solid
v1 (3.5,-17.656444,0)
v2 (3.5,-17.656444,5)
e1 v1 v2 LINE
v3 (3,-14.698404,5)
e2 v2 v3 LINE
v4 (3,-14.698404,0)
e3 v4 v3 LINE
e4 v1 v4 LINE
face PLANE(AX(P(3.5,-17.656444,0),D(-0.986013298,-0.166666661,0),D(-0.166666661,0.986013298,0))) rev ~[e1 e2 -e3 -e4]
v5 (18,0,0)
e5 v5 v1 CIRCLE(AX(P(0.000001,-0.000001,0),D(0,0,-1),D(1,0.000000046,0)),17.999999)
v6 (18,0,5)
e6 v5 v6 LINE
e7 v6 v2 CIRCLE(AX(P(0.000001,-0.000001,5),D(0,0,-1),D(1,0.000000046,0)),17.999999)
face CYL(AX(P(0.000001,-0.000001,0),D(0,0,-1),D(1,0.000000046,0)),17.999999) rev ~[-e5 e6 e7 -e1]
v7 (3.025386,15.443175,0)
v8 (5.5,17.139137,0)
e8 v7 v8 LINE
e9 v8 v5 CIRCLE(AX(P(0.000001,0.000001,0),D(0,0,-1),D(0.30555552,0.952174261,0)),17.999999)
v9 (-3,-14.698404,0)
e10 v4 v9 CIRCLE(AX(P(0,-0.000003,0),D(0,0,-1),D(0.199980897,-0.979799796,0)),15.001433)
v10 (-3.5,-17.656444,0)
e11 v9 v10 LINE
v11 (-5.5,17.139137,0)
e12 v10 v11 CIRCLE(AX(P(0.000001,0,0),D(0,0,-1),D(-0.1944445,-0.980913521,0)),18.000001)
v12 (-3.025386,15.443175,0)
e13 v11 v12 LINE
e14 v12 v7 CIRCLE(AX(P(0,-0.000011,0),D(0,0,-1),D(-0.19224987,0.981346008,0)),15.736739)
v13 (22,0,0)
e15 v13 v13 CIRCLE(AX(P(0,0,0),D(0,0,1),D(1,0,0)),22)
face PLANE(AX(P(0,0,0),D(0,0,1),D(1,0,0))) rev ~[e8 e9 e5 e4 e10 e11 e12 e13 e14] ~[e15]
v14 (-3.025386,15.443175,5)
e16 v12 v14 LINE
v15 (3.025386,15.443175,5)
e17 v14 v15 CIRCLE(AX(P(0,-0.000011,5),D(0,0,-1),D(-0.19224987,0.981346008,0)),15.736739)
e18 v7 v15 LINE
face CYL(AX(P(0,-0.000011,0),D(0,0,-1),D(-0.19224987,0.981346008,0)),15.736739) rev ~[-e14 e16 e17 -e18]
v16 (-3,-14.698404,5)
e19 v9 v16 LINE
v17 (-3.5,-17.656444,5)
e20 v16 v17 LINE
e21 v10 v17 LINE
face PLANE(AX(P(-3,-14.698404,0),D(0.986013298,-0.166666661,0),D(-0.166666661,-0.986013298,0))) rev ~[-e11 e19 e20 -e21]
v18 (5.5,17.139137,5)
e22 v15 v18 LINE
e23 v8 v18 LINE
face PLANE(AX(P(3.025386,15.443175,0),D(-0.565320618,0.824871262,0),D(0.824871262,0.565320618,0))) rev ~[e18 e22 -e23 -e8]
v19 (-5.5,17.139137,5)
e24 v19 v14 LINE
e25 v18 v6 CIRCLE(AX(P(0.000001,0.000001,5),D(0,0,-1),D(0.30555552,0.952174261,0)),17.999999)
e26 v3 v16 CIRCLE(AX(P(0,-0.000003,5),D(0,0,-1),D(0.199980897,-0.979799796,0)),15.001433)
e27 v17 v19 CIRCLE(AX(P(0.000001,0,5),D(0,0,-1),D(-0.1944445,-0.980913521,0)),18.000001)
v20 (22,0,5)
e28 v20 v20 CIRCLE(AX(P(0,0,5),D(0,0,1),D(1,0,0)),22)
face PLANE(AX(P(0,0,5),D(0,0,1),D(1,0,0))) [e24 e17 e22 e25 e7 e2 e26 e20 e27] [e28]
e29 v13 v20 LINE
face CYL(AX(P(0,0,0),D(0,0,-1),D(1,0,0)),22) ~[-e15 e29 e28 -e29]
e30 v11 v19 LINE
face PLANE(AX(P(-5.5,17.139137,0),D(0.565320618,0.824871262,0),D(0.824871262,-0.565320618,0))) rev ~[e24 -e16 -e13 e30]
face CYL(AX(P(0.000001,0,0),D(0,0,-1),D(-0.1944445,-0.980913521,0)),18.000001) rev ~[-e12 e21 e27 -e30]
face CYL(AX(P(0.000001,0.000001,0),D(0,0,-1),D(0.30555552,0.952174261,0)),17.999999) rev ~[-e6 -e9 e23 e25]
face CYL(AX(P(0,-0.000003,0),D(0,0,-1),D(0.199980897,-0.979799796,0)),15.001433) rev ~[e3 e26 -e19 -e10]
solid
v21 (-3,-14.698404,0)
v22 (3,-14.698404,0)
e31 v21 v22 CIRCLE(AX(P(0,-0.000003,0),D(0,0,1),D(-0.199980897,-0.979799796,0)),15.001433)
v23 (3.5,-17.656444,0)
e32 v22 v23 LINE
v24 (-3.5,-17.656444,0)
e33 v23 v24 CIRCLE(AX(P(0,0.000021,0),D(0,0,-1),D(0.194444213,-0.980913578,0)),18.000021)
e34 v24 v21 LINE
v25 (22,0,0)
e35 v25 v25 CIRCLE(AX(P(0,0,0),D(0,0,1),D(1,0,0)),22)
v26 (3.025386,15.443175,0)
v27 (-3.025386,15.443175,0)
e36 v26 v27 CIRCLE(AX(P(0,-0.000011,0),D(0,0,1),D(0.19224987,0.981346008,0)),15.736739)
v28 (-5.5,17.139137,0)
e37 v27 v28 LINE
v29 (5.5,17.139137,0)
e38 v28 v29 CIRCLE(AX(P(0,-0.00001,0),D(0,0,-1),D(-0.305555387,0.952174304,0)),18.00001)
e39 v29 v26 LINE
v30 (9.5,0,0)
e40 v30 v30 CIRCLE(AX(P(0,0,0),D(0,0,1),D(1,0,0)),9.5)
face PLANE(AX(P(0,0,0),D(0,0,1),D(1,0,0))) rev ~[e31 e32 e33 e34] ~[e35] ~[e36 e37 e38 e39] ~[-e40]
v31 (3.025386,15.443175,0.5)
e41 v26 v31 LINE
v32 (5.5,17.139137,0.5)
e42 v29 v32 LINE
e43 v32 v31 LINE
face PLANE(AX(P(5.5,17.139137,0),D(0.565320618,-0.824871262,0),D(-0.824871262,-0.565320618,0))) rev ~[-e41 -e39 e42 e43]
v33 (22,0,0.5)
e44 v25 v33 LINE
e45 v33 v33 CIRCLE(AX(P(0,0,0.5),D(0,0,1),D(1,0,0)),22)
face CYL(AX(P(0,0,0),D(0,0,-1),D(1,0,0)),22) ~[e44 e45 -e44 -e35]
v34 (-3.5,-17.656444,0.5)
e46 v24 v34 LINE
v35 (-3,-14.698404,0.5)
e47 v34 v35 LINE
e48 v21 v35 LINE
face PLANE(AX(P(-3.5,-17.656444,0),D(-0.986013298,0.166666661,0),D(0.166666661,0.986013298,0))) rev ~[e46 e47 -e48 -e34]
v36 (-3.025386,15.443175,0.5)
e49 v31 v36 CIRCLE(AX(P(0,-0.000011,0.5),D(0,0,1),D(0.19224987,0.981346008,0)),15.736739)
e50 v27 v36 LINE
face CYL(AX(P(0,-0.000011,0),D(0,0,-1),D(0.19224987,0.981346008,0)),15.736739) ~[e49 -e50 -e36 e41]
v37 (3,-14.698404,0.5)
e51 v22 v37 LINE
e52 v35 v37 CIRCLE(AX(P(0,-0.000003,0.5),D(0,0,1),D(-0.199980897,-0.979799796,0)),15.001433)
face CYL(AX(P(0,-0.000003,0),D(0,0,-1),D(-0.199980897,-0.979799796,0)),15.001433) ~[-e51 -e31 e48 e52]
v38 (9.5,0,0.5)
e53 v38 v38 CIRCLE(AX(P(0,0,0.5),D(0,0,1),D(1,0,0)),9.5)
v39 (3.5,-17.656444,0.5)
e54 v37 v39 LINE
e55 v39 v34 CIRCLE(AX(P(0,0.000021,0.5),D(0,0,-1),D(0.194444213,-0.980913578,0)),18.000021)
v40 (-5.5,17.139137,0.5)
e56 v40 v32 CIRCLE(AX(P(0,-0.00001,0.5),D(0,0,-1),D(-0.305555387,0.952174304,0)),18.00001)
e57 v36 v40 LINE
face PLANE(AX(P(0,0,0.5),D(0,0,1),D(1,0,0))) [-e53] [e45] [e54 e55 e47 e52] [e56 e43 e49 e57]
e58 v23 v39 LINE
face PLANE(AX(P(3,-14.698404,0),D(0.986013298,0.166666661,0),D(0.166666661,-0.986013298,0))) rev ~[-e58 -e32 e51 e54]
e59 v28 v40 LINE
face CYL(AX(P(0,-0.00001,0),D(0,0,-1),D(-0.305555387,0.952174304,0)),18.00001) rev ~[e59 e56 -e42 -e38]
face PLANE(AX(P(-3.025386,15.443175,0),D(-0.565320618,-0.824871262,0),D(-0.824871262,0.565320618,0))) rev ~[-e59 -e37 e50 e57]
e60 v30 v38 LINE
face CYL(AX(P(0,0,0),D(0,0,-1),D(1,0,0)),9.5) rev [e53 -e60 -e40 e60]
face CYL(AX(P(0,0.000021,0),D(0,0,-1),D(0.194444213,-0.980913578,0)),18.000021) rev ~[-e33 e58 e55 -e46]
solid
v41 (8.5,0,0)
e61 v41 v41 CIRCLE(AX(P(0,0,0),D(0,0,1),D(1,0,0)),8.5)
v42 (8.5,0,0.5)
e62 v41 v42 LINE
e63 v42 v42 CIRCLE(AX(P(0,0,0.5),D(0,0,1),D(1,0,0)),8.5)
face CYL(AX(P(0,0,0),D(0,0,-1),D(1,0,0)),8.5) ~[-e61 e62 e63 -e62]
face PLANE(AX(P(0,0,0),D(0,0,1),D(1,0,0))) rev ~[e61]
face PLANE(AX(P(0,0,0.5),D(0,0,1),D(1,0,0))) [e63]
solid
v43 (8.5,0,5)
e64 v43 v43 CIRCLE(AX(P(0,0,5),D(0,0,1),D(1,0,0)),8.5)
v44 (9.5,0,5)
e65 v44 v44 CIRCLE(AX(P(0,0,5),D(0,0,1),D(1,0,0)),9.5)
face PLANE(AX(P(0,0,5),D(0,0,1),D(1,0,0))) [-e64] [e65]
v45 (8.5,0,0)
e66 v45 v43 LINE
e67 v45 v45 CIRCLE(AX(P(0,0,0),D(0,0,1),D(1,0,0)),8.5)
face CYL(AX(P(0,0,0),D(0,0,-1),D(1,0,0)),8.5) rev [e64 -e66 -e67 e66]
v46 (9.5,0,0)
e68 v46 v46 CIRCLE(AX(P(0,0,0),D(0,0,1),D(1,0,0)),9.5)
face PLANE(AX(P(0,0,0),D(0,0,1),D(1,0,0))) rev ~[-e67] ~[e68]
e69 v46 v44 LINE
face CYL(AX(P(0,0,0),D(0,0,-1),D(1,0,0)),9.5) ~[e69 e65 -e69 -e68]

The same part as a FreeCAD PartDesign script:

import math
import FreeCAD as App
import Part
import Sketcher

V = App.Vector
Q = App.Units.Quantity

doc = App.newDocument("Part")
body = doc.addObject("PartDesign::Body", "Body")
body.AllowCompound = True

# Sketch on XY plane
sketch1 = body.newObject("Sketcher::SketchObject", "Sketch")
sketch1.AttachmentSupport = (doc.getObject("XY_Plane"), [""])
sketch1.MapMode = "FlatFace"
sketch1.addGeometry([
    Part.Circle(V(0, 0, 0), V(0, 0, 1), 22),  # 0
    Part.ArcOfCircle(Part.Circle(V(0, 0, 0), V(0, 0, 1), 18), math.radians(108), math.radians(259)),  # 1
    Part.LineSegment(V(-5.5, 17.1, 0), V(-3, 15.4, 0)),  # 2
    Part.ArcOfCircle(Part.Circle(V(0, 0, 0), V(0, 0, 1), 15.7), math.radians(79), math.radians(101)),  # 3
    Part.LineSegment(V(3, 15.4, 0), V(5.5, 17.1, 0)),  # 4
    Part.ArcOfCircle(Part.Circle(V(0, 0, 0), V(0, 0, 1), 18), math.radians(0), math.radians(72)),  # 5
    Part.ArcOfCircle(Part.Circle(V(0, 0, 0), V(0, 0, 1), 18), math.radians(-79), math.radians(0)),  # 6
    Part.LineSegment(V(3.5, -17.7, 0), V(3, -14.7, 0)),  # 7
    Part.ArcOfCircle(Part.Circle(V(0, 0, 0), V(0, 0, 1), 15), math.radians(-102), math.radians(-78)),  # 8
    Part.LineSegment(V(-3, -14.7, 0), V(-3.5, -17.7, 0)),  # 9
    Part.Circle(V(0, 0, 0), V(0, 0, 1), 9.5),  # 10
    Part.Circle(V(0, 0, 0), V(0, 0, 1), 8.5),  # 11
], False)
sketch1.addConstraint([
    Sketcher.Constraint("Coincident", 1, 1, 2, 1),
    Sketcher.Constraint("Coincident", 2, 2, 3, 2),
    Sketcher.Constraint("Coincident", 3, 1, 4, 1),
    Sketcher.Constraint("Coincident", 4, 2, 5, 2),
    Sketcher.Constraint("Tangent", 5, 1, 6, 2),
    Sketcher.Constraint("Coincident", 6, 1, 7, 1),
    Sketcher.Constraint("Coincident", 7, 2, 8, 2),
    Sketcher.Constraint("Coincident", 8, 1, 9, 1),
    Sketcher.Constraint("Coincident", 9, 2, 1, 2),
    Sketcher.Constraint("Coincident", 0, 3, -1, 1),
    Sketcher.Constraint("Coincident", 1, 3, -1, 1),
    Sketcher.Constraint("Coincident", 5, 3, -1, 1),
    Sketcher.Constraint("Coincident", 8, 3, -1, 1),
    Sketcher.Constraint("Coincident", 10, 3, -1, 1),
    Sketcher.Constraint("Coincident", 11, 3, -1, 1),
    Sketcher.Constraint("Equal", 1, 5),
    Sketcher.Constraint("Equal", 5, 6),
    Sketcher.Constraint("Symmetric", 2, 2, 3, 1, -2),
    Sketcher.Constraint("PointOnObject", 5, 1, -1),
    Sketcher.Constraint("Horizontal", 1, 1, 4, 2),
    Sketcher.Constraint("Horizontal", 7, 2, 8, 1),
    Sketcher.Constraint("Horizontal", 6, 1, 9, 2),
    Sketcher.Constraint("Equal", 4, 7),
    Sketcher.Constraint("Diameter", 0, Q("44 mm")),
    Sketcher.Constraint("Diameter", 10, Q("19 mm")),
    Sketcher.Constraint("Diameter", 11, Q("17 mm")),
    Sketcher.Constraint("Radius", 1, Q("18.000001 mm")),
    Sketcher.Constraint("Distance", 2, Q("3 mm")),
    Sketcher.Constraint("DistanceX", -1, 1, 7, 2, Q("3 mm")),
    Sketcher.Constraint("DistanceX", 1, 1, 4, 2, Q("11 mm")),
    Sketcher.Constraint("DistanceX", 9, 2, 6, 1, Q("7 mm")),
    Sketcher.Constraint("Radius", 3, Q("15.736739 mm")),
    Sketcher.Constraint("DistanceY", 2, 2, 1, 1, Q("1.695962 mm")),
])
pad1 = body.newObject("PartDesign::Pad", "Pad")
pad1.Profile = sketch1
pad1.Length = 5
body2 = doc.addObject("PartDesign::Body", "Body001")
body2.AllowCompound = True

# Sketch on XY plane
sketch2 = body2.newObject("Sketcher::SketchObject", "Sketch001")
sketch2.AttachmentSupport = (doc.getObject("XY_Plane001"), [""])
sketch2.MapMode = "FlatFace"
sketch2.addGeometry([
    Part.Circle(V(0, 0, 0), V(0, 0, 1), 22),  # 0
    Part.ArcOfCircle(Part.Circle(V(0, 0, 0), V(0, 0, 1), 18), math.radians(-101), math.radians(-79)),  # 1
    Part.LineSegment(V(-3.5, -17.7, 0), V(-3, -14.7, 0)),  # 2
    Part.ArcOfCircle(Part.Circle(V(0, 0, 0), V(0, 0, 1), 15), math.radians(-102), math.radians(-78)),  # 3
    Part.LineSegment(V(3, -14.7, 0), V(3.5, -17.7, 0)),  # 4
    Part.Circle(V(0, 0, 0), V(0, 0, 1), 9.5),  # 5
    Part.ArcOfCircle(Part.Circle(V(0, 0, 0), V(0, 0, 1), 18), math.radians(72), math.radians(108)),  # 6
    Part.LineSegment(V(5.5, 17.1, 0), V(3, 15.4, 0)),  # 7
    Part.ArcOfCircle(Part.Circle(V(0, 0, 0), V(0, 0, 1), 15.7), math.radians(79), math.radians(101)),  # 8
    Part.LineSegment(V(-3, 15.4, 0), V(-5.5, 17.1, 0)),  # 9
    Part.Circle(V(0, 0, 0), V(0, 0, 1), 8.5),  # 10
], False)
sketch2.addConstraint([
    Sketcher.Constraint("Coincident", 1, 1, 2, 1),
    Sketcher.Constraint("Coincident", 2, 2, 3, 1),
    Sketcher.Constraint("Coincident", 3, 2, 4, 1),
    Sketcher.Constraint("Coincident", 4, 2, 1, 2),
    Sketcher.Constraint("Coincident", 6, 1, 7, 1),
    Sketcher.Constraint("Coincident", 7, 2, 8, 1),
    Sketcher.Constraint("Coincident", 8, 2, 9, 1),
    Sketcher.Constraint("Coincident", 9, 2, 6, 2),
    Sketcher.Constraint("Coincident", 0, 3, -1, 1),
    Sketcher.Constraint("Coincident", 3, 3, -1, 1),
    Sketcher.Constraint("Coincident", 5, 3, -1, 1),
    Sketcher.Constraint("Coincident", 6, 3, -1, 1),
    Sketcher.Constraint("Coincident", 10, 3, -1, 1),
    Sketcher.Constraint("Coincident", 8, 3, 3, 3),
    Sketcher.Constraint("Symmetric", 1, 1, 4, 2, -2),
    Sketcher.Constraint("Horizontal", 2, 2, 3, 2),
    Sketcher.Constraint("Horizontal", 7, 2, 8, 2),
    Sketcher.Constraint("Horizontal", 6, 1, 9, 2),
    Sketcher.Constraint("Equal", 4, 7),
    Sketcher.Constraint("Diameter", 0, Q("44 mm")),
    Sketcher.Constraint("Diameter", 5, Q("19 mm")),
    Sketcher.Constraint("Diameter", 10, Q("17 mm")),
    Sketcher.Constraint("Distance", 2, Q("3 mm")),
    Sketcher.Constraint("DistanceX", 2, 2, -1, 1, Q("3 mm")),
    Sketcher.Constraint("DistanceX", 1, 1, 4, 2, Q("7 mm")),
    Sketcher.Constraint("DistanceX", 9, 2, 6, 1, Q("11 mm")),
    Sketcher.Constraint("Radius", 1, Q("18.000021 mm")),
    Sketcher.Constraint("Radius", 6, Q("18.00001 mm")),
    Sketcher.Constraint("Radius", 8, Q("15.736739 mm")),
    Sketcher.Constraint("Radius", 3, Q("15.001433 mm")),
])
pad2 = body2.newObject("PartDesign::Pad", "Pad001")
pad2.Profile = sketch2
pad2.Length = 0.5

doc.recompute()
